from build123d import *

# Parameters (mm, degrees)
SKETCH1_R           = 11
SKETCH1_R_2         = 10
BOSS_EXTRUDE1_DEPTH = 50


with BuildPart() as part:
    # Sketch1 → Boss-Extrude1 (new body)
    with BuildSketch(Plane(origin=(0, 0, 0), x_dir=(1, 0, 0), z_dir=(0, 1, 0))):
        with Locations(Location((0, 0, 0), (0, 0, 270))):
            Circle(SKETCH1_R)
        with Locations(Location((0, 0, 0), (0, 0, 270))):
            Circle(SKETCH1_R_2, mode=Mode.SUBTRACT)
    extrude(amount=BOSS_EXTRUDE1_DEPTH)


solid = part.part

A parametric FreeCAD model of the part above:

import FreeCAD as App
import Part
import Sketcher
from FreeCAD import Vector

doc = App.newDocument("Part")
body = doc.addObject("PartDesign::Body", "Body")

# Sketch on XZ plane
sketch1 = body.newObject("Sketcher::SketchObject", "Sketch")
sketch1.AttachmentSupport = (doc.getObject("XZ_Plane"), [""])
sketch1.MapMode = "FlatFace"
sketch1.addGeometry(Part.Circle(Vector(0, 0, 0), Vector(0, 0, 1), 11), False)
sketch1.addGeometry(Part.Circle(Vector(0, 0, 0), Vector(0, 0, 1), 10), False)
sketch1.addConstraint(Sketcher.Constraint("Coincident", 0, 3, -1, 1))
sketch1.addConstraint(Sketcher.Constraint("Coincident", 1, 3, -1, 1))
sketch1.addConstraint(Sketcher.Constraint("Diameter", 0, 22.0))
sketch1.addConstraint(Sketcher.Constraint("Diameter", 1, 20.0))
pad1 = body.newObject("PartDesign::Pad", "Pad")
pad1.Profile = sketch1
pad1.Length = 50
pad1.Reversed = True

doc.recompute()
